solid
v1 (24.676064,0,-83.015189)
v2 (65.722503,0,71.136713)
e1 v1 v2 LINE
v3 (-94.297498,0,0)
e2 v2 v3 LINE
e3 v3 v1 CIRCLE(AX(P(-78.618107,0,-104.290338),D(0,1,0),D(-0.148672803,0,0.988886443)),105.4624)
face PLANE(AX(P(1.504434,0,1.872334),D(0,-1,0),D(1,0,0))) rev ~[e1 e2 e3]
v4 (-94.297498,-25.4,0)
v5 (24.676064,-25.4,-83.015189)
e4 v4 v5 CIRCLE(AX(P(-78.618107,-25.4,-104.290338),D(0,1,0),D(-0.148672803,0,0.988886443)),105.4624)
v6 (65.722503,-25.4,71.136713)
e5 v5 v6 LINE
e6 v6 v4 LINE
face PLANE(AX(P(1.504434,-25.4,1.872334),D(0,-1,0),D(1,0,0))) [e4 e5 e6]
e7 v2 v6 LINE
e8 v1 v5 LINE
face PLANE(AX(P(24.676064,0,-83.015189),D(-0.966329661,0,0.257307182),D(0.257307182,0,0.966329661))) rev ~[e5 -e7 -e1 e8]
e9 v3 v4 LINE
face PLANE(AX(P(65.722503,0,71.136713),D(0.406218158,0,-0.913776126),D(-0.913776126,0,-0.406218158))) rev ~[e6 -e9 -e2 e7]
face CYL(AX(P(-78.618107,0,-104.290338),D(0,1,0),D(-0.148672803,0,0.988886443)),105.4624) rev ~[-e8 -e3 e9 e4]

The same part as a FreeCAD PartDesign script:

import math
import FreeCAD as App
import Part
import Sketcher

V = App.Vector
Q = App.Units.Quantity

doc = App.newDocument("Part")
body = doc.addObject("PartDesign::Body", "Body")

# Sketch on XZ plane
sketch1 = doc.addObject("Sketcher::SketchObject", "Sketch")
body.addObject(sketch1)
sketch1.AttachmentSupport = (doc.XZ_Plane, [""])
sketch1.MapMode = "FlatFace"
sketch1.addGeometry(Part.LineSegment(V(24.676064, -83.015189, 0), V(65.722503, 71.136713, 0)), False)
sketch1.addGeometry(Part.LineSegment(V(65.722503, 71.136713, 0), V(-94.297498, 0, 0)), False)
sketch1.addGeometry(Part.ArcOfCircle(Part.Circle(V(-78.618107, -104.290338, 0), V(0, 0, 1), 105.4624), math.radians(11.638264), math.radians(98.550021)), False)
sketch1.addConstraint(Sketcher.Constraint("Coincident", 0, 2, 1, 1))
sketch1.addConstraint(Sketcher.Constraint("Coincident", 1, 2, 2, 2))
sketch1.addConstraint(Sketcher.Constraint("Coincident", 2, 1, 0, 1))
sketch1.addConstraint(Sketcher.Constraint("PointOnObject", 1, 2, -1))
sketch1.addConstraint(Sketcher.Constraint("DistanceX", 1, 2, 0, 2, Q("6.3 in")))
sketch1.addConstraint(Sketcher.Constraint("Radius", 2, Q("105.4624 mm")))
sketch1.addConstraint(Sketcher.Constraint("DistanceX", -1, 1, 0, 2, Q("2.5875001 in")))
sketch1.addConstraint(Sketcher.Constraint("Distance", 0, Q("159.523099 mm")))
sketch1.addConstraint(Sketcher.Constraint("Distance", 1, Q("175.119481 mm")))
sketch1.addConstraint(Sketcher.Constraint("DistanceX", 2, 3, 0, 2, Q("144.34061 mm")))
pad1 = doc.addObject("PartDesign::Pad", "Pad")
body.addObject(pad1)
pad1.Profile = sketch1
pad1.Length = Q("1 in")

doc.recompute()
